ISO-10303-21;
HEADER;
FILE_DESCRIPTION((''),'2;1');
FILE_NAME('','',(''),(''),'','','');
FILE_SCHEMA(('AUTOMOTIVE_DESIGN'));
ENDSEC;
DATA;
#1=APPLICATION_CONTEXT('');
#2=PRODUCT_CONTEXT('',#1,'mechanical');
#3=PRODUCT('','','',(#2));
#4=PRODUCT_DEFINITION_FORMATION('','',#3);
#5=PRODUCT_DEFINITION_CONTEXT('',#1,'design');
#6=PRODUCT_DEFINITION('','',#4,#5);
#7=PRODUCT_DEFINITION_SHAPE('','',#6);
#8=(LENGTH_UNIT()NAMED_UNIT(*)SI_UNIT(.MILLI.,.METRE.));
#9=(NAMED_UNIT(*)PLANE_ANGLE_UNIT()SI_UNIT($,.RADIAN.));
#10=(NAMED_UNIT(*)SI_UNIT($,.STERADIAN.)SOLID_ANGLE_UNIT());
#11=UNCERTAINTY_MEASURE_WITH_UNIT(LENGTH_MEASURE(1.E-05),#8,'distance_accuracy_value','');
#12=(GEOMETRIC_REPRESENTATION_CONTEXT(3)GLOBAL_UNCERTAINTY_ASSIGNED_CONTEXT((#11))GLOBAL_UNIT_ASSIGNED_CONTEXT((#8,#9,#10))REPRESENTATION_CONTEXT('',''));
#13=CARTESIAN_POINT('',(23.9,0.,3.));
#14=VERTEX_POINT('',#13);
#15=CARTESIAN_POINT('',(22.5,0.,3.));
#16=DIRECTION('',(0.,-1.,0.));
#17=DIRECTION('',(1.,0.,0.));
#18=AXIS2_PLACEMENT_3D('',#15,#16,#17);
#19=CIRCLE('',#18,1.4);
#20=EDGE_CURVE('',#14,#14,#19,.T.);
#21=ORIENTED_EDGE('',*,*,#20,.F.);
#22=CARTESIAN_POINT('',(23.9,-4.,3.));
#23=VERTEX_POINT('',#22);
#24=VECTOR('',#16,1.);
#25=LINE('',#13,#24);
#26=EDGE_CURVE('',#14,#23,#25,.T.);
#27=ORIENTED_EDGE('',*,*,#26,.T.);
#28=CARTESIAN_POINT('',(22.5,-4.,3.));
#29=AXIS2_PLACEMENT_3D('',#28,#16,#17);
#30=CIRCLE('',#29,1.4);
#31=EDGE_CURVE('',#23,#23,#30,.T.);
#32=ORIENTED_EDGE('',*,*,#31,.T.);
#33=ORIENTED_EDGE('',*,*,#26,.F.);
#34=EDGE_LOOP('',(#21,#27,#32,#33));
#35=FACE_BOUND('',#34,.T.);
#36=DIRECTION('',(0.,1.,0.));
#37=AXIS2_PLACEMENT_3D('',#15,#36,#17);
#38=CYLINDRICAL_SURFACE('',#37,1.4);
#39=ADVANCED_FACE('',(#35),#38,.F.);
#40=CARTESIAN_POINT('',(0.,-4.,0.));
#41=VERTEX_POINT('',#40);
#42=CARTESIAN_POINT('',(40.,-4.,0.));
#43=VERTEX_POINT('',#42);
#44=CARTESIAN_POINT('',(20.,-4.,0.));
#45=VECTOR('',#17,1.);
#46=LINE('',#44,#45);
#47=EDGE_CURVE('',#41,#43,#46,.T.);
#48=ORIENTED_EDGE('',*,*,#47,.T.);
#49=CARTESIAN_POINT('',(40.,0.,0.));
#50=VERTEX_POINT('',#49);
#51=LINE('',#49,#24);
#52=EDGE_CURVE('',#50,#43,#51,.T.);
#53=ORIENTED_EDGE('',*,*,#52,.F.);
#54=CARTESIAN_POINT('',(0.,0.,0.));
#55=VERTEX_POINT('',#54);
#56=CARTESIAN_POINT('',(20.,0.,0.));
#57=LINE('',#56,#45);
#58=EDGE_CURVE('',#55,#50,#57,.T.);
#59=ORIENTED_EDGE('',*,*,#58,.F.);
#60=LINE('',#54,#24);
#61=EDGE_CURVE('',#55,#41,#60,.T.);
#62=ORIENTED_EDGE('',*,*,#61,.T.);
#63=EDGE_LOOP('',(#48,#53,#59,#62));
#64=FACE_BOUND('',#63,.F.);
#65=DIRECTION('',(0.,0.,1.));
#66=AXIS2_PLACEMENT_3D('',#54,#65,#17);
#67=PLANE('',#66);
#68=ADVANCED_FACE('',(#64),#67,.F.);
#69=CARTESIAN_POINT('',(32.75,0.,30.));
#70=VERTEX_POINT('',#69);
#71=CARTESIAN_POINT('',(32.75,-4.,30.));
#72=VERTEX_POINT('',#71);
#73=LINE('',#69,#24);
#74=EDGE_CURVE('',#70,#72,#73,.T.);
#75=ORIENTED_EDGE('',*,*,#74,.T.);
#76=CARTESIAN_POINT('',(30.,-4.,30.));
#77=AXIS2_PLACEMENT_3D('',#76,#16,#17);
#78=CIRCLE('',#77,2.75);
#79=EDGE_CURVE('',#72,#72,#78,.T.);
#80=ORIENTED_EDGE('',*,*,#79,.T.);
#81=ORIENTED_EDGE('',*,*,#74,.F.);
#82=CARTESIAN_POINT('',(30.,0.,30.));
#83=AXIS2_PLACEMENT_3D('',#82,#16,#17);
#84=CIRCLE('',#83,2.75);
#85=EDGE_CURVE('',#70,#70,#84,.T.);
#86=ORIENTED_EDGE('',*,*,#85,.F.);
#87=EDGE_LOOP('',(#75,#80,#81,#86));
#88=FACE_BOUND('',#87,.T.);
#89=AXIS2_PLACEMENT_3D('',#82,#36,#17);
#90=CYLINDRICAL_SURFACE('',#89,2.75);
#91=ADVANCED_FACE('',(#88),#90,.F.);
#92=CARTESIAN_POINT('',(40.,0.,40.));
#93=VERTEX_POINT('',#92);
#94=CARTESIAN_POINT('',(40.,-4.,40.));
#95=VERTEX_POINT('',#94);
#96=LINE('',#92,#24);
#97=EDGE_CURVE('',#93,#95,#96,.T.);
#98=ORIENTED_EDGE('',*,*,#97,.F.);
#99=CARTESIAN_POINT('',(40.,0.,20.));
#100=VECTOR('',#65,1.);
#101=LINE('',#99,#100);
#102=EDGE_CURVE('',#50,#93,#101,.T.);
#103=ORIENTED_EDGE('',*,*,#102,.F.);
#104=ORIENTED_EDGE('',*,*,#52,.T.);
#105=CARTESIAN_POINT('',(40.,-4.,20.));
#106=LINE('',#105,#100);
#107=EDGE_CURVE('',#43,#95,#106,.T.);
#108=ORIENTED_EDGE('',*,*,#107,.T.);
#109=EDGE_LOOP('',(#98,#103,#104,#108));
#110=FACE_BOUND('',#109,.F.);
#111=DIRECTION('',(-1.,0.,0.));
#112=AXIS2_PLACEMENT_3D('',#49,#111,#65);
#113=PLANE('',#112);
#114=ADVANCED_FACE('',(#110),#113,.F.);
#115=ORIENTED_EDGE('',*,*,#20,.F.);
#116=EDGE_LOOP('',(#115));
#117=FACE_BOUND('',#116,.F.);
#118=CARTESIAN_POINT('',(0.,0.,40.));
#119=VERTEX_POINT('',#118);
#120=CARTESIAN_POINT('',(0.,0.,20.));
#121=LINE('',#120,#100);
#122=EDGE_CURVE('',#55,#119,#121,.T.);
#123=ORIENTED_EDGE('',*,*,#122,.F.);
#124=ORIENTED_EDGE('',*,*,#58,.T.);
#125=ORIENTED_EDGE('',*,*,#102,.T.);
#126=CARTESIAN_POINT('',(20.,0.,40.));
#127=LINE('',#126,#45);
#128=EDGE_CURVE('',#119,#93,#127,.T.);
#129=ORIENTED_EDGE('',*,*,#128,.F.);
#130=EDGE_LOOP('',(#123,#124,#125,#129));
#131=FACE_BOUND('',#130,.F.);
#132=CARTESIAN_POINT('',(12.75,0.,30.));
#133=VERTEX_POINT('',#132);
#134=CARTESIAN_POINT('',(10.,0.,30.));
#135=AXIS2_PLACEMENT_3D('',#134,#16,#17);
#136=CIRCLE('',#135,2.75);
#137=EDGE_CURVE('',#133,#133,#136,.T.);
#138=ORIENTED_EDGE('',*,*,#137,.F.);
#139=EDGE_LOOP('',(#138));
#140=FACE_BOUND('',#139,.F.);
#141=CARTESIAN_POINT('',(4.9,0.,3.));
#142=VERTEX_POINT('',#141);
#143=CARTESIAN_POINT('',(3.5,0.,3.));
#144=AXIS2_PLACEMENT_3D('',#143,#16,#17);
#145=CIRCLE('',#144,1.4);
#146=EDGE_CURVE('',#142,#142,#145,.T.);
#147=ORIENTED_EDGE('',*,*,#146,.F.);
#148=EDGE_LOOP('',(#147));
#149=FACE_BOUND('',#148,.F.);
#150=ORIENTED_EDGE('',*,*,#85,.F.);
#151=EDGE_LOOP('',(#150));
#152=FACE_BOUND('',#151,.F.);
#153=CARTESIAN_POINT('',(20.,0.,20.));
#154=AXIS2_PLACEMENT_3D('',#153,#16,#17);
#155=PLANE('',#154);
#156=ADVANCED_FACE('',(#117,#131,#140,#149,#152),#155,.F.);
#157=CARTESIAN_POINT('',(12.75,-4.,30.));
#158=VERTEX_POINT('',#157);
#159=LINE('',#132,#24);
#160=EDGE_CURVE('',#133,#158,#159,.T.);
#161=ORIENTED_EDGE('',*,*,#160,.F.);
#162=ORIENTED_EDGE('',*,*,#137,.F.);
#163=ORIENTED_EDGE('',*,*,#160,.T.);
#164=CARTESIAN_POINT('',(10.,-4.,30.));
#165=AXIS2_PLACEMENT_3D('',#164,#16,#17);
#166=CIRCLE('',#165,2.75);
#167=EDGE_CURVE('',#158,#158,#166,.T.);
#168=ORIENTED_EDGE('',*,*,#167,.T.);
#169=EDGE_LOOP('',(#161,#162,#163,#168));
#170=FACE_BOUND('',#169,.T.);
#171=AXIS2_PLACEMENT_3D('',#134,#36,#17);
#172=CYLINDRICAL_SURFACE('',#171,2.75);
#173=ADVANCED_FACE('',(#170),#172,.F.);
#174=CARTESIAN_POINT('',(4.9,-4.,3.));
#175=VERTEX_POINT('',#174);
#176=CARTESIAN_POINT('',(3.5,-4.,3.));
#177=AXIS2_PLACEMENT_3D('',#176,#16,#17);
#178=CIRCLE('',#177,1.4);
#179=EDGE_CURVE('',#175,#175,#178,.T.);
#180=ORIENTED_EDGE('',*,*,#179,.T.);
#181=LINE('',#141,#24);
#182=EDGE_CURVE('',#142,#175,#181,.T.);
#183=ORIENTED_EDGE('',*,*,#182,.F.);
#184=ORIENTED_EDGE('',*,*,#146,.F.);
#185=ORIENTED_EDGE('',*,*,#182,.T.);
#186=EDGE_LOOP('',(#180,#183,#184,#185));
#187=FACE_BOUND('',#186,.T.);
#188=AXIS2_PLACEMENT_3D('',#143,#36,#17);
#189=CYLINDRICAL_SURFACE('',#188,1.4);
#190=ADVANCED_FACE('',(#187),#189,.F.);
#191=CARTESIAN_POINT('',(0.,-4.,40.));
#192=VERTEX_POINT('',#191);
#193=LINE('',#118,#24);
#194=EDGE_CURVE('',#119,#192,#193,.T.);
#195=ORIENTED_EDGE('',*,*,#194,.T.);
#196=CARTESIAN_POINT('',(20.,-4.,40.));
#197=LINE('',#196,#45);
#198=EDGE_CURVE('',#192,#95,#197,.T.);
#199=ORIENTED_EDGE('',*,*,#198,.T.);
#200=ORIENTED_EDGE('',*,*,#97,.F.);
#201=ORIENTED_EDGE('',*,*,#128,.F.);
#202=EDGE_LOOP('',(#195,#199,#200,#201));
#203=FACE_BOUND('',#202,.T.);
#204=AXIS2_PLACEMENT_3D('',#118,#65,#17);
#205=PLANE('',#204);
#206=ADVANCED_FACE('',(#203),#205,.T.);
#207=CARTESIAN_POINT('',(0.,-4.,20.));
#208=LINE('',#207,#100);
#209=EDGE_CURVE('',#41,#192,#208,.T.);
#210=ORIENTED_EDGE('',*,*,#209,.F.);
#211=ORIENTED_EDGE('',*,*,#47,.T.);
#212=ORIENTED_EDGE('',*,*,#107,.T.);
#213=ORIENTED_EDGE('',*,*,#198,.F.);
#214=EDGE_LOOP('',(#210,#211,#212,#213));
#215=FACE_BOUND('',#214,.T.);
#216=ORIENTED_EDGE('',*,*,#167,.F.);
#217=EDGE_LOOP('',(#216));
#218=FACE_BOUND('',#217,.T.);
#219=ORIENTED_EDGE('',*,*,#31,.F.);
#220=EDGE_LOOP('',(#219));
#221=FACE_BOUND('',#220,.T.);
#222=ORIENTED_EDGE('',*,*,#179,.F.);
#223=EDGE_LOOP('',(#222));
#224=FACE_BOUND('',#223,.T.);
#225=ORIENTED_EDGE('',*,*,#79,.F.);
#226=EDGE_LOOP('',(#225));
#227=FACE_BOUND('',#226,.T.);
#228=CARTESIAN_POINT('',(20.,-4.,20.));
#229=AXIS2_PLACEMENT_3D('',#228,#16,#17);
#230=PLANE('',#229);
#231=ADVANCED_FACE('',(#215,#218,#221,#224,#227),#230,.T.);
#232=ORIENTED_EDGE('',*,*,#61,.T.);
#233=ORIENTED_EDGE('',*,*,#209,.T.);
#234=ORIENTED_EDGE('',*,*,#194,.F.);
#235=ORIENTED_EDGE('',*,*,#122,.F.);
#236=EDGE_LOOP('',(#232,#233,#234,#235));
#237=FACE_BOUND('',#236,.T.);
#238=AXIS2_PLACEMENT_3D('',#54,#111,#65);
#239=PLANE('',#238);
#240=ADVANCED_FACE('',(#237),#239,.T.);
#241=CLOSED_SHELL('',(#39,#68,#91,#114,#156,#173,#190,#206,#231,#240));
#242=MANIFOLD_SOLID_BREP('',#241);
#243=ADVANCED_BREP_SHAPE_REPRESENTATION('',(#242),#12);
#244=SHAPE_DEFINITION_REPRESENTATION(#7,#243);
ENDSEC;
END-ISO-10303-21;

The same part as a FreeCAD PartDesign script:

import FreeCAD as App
import Part
import Sketcher

doc = App.newDocument("Part")
body = doc.addObject("PartDesign::Body", "Body")

sketch1 = body.newObject("Sketcher::SketchObject", "Sketch")
sketch1.AttachmentSupport = (doc.getObject("XZ_Plane"), [""])
sketch1.MapMode = "FlatFace"
sketch1.addGeometry(Part.LineSegment(App.Vector(0, 40, 0), App.Vector(0, 0, 0)), False)
sketch1.addGeometry(Part.LineSegment(App.Vector(0, 0, 0), App.Vector(40, 0, 0)), False)
sketch1.addGeometry(Part.LineSegment(App.Vector(40, 0, 0), App.Vector(40, 40, 0)), False)
sketch1.addGeometry(Part.LineSegment(App.Vector(40, 40, 0), App.Vector(0, 40, 0)), False)
sketch1.addGeometry(Part.Circle(App.Vector(3.5, 3, 0), App.Vector(0, 0, 1), 1.4), False)
sketch1.addGeometry(Part.Circle(App.Vector(22.5, 3, 0), App.Vector(0, 0, 1), 1.4), False)
sketch1.addGeometry(Part.Circle(App.Vector(10, 30, 0), App.Vector(0, 0, 1), 2.8), False)
sketch1.addGeometry(Part.Circle(App.Vector(30, 30, 0), App.Vector(0, 0, 1), 2.8), False)
sketch1.addConstraint(Sketcher.Constraint("Coincident", 0, 2, 1, 1))
sketch1.addConstraint(Sketcher.Constraint("Coincident", 1, 2, 2, 1))
sketch1.addConstraint(Sketcher.Constraint("Coincident", 2, 2, 3, 1))
sketch1.addConstraint(Sketcher.Constraint("Coincident", 3, 2, 0, 1))
sketch1.addConstraint(Sketcher.Constraint("Vertical", 0))
sketch1.addConstraint(Sketcher.Constraint("Horizontal", 1))
sketch1.addConstraint(Sketcher.Constraint("Vertical", 2))
sketch1.addConstraint(Sketcher.Constraint("Horizontal", 3))
sketch1.addConstraint(Sketcher.Constraint("Coincident", 0, 2, -1, 1))
sketch1.addConstraint(Sketcher.Constraint("Equal", 4, 5))
sketch1.addConstraint(Sketcher.Constraint("Equal", 6, 7))
sketch1.addConstraint(Sketcher.Constraint("Horizontal", 4, 3, 5, 3))
sketch1.addConstraint(Sketcher.Constraint("Horizontal", 6, 3, 7, 3))
sketch1.addConstraint(Sketcher.Constraint("Equal", 3, 0))
sketch1.addConstraint(Sketcher.Constraint("Diameter", 4, 2.8))
sketch1.addConstraint(Sketcher.Constraint("Diameter", 6, 5.5))
sketch1.addConstraint(Sketcher.Constraint("DistanceX", 1, 1, 1, 2, 40.0))
sketch1.addConstraint(Sketcher.Constraint("DistanceY", -1, 1, 4, 3, 3.0))
sketch1.addConstraint(Sketcher.Constraint("DistanceX", -1, 1, 6, 3, 10.0))
sketch1.addConstraint(Sketcher.Constraint("DistanceY", -1, 1, 6, 3, 30.0))
sketch1.addConstraint(Sketcher.Constraint("DistanceX", -1, 1, 7, 3, 30.0))
sketch1.addConstraint(Sketcher.Constraint("DistanceX", 4, 3, 5, 3, 19.0))
sketch1.addConstraint(Sketcher.Constraint("DistanceX", -1, 1, 4, 3, 3.5))
pad1 = body.newObject("PartDesign::Pad", "Pad")
pad1.Profile = sketch1
pad1.Length = 4

doc.recompute()
